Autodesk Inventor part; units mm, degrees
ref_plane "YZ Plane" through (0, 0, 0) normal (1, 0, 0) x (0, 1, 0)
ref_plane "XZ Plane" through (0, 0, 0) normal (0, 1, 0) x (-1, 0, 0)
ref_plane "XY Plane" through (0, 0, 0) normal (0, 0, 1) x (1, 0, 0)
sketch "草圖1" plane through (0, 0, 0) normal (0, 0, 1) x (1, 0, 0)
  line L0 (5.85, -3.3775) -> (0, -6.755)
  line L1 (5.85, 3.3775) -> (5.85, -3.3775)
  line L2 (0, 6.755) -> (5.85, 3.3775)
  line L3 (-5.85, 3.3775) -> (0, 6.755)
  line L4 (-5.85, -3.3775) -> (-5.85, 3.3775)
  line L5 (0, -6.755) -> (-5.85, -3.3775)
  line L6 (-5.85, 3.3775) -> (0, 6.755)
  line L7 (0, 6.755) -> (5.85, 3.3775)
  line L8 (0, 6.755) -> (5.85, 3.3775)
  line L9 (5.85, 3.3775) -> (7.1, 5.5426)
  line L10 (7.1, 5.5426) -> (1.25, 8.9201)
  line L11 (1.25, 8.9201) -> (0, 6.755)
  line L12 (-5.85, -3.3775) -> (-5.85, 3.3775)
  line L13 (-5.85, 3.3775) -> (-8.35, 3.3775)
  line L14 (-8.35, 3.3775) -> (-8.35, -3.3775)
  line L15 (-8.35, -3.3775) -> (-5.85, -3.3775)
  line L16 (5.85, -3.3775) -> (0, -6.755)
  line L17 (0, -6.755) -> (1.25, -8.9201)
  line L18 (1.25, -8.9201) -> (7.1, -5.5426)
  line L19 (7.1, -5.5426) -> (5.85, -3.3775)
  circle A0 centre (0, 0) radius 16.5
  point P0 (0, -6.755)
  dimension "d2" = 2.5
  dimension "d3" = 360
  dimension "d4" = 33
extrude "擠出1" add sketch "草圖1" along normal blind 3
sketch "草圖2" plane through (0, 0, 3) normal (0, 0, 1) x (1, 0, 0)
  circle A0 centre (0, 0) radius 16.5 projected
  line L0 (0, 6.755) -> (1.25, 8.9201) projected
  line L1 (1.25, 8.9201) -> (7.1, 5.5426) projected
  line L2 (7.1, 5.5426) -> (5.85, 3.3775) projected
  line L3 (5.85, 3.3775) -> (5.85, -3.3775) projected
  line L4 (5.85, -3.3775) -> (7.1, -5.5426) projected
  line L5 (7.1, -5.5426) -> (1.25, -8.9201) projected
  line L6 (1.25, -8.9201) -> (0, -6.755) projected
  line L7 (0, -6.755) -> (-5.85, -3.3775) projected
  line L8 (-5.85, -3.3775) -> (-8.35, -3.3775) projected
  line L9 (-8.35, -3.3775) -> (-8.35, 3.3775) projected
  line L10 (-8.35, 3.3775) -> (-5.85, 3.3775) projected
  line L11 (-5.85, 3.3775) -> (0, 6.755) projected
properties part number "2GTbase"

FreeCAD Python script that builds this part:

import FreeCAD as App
import Part
import Sketcher

V = App.Vector
Q = App.Units.Quantity


def add_polygon(sketch, points):
    """Adds a closed chain of lines whose ends are joined by coincident constraints."""
    first, n = sketch.GeometryCount, len(points)
    for a, b in zip(points, points[1:] + points[:1]):
        sketch.addGeometry(Part.LineSegment(App.Vector(*a, 0), App.Vector(*b, 0)), False)
    for i in range(n):
        sketch.addConstraint(Sketcher.Constraint("Coincident", first + i, 2, first + (i + 1) % n, 1))

doc = App.newDocument("Part")
body = doc.addObject("PartDesign::Body", "Body")

# Sketch on XY plane
sketch1 = body.newObject("Sketcher::SketchObject", "Sketch")
sketch1.AttachmentSupport = (doc.getObject("XY_Plane"), [""])
sketch1.MapMode = "FlatFace"
sketch1.addGeometry(Part.Circle(V(0, 0, 0), V(0, 0, 1), 16.5), False)  # 0
add_polygon(sketch1, [(5.85, 3.3775), (5.85, -3.3775), (7.1, -5.5426), (1.25, -8.9201), (0, -6.755), (-5.85, -3.3775), (-8.35, -3.3775), (-8.35, 3.3775), (-5.85, 3.3775), (0, 6.755), (1.25, 8.9201), (7.1, 5.5426)])  # lines 1-12
sketch1.addConstraint([
    Sketcher.Constraint("Vertical", 1),
    Sketcher.Constraint("Horizontal", 6),
    Sketcher.Constraint("Vertical", 7),
    Sketcher.Constraint("Horizontal", 8),
    Sketcher.Constraint("Coincident", 0, 3, -1, 1),
    Sketcher.Constraint("Symmetric", 1, 2, 8, 2, -1, 1),
    Sketcher.Constraint("Symmetric", 4, 2, 9, 2, -1, 1),
    Sketcher.Constraint("Symmetric", 5, 2, 12, 2, -1, 1),
    Sketcher.Constraint("Symmetric", 3, 2, 10, 2, -1),
    Sketcher.Constraint("Symmetric", 2, 2, 11, 2, -1),
    Sketcher.Constraint("PointOnObject", 4, 2, -2),
    Sketcher.Constraint("Perpendicular", 2, 3),
    Sketcher.Constraint("Perpendicular", 3, 4),
    Sketcher.Constraint("Perpendicular", 4, 9),
    Sketcher.Constraint("Perpendicular", 5, 10),
    Sketcher.Constraint("Diameter", 0, Q("33 mm")),
    Sketcher.Constraint("DistanceX", 6, 2, 6, 1, Q("2.5 mm")),
    Sketcher.Constraint("Distance", 2, Q("2.5 mm")),
    Sketcher.Constraint("Angle", 2, Q("-60.0004 deg")),
    Sketcher.Constraint("DistanceX", -1, 1, 2, 2, Q("7.1 mm")),
    Sketcher.Constraint("DistanceY", 1, 2, 1, 1, Q("6.755 mm")),
])
pad1 = body.newObject("PartDesign::Pad", "Pad")
pad1.Profile = sketch1
pad1.Length = 3

doc.recompute()
